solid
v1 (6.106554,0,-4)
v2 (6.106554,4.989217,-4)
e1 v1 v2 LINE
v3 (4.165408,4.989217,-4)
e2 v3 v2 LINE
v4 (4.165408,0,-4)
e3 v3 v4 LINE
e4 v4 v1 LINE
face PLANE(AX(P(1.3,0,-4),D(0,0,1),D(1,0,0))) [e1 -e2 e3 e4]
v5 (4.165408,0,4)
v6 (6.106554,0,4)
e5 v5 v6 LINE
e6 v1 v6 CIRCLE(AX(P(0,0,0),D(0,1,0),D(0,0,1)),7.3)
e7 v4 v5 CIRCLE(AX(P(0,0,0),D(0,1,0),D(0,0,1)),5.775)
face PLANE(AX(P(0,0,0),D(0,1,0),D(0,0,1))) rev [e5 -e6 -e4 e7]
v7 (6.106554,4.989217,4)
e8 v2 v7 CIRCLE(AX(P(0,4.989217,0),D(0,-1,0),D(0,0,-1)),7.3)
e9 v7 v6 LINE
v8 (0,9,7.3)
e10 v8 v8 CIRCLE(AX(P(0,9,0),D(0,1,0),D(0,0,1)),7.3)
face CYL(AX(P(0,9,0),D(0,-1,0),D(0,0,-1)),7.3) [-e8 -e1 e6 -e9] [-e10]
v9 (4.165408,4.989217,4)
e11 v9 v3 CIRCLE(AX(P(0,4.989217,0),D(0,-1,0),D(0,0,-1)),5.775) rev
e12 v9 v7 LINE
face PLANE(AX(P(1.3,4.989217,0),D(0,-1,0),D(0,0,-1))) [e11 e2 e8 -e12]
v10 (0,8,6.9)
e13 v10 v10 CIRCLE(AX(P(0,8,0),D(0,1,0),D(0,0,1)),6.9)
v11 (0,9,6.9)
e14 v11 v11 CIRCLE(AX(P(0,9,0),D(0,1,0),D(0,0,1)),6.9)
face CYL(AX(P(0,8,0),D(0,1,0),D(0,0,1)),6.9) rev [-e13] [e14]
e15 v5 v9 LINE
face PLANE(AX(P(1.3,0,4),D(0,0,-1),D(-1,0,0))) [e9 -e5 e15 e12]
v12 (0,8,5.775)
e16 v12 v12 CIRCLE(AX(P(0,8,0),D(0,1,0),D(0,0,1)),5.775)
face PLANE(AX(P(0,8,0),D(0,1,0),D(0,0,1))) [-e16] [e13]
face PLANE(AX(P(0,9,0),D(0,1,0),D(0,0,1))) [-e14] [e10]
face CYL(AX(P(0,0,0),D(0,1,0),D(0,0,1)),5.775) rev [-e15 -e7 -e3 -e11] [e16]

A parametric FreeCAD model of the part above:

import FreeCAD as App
import Part
import Sketcher

doc = App.newDocument("Part")
body = doc.addObject("PartDesign::Body", "Body")

sketch1 = doc.addObject("Sketcher::SketchObject", "Sketch")
body.addObject(sketch1)
sketch1.AttachmentSupport = (doc.XZ_Plane, [""])
sketch1.MapMode = "FlatFace"
sketch1.addGeometry(Part.Circle(App.Vector(0, 0, 0), App.Vector(0, 0, 1), 7), False)
sketch1.addConstraint([
    Sketcher.Constraint("Coincident", 0, 3, -1, 1),
    Sketcher.Constraint("Diameter", 0, 14.6),
])
pad1 = doc.addObject("PartDesign::Pad", "Pad")
body.addObject(pad1)
pad1.Profile = sketch1
pad1.Length = 9
pad1.Reversed = True

sketch2 = doc.addObject("Sketcher::SketchObject", "Sketch001")
body.addObject(sketch2)
sketch2.AttachmentSupport = (doc.XZ_Plane, [""])
sketch2.MapMode = "FlatFace"
sketch2.AttachmentOffset = App.Placement(App.Vector(0, 0, -9), App.Rotation())
sketch2.addGeometry(Part.Circle(App.Vector(0, 0, 0), App.Vector(0, 0, 1), 7), False)
sketch2.addConstraint([
    Sketcher.Constraint("Coincident", 0, 3, -1, 1),
    Sketcher.Constraint("Diameter", 0, 13.8),
])
pocket1 = doc.addObject("PartDesign::Pocket", "Pocket")
body.addObject(pocket1)
pocket1.Profile = sketch2
pocket1.Length = 1
pocket1.Reversed = True

sketch3 = doc.addObject("Sketcher::SketchObject", "Sketch002")
body.addObject(sketch3)
sketch3.AttachmentSupport = (doc.XZ_Plane, [""])
sketch3.MapMode = "FlatFace"
sketch3.addGeometry(Part.Circle(App.Vector(0, 0, 0), App.Vector(0, 0, 1), 5), False)
sketch3.addConstraint([
    Sketcher.Constraint("Coincident", 0, 3, -1, 1),
    Sketcher.Constraint("Diameter", 0, 10.0),
])
pocket2 = doc.addObject("PartDesign::Pocket", "Pocket001")
body.addObject(pocket2)
pocket2.Profile = sketch3
pocket2.Length = 7

sketch4 = doc.addObject("Sketcher::SketchObject", "Sketch003")
body.addObject(sketch4)
sketch4.AttachmentSupport = (doc.XZ_Plane, [""])
sketch4.MapMode = "FlatFace"
sketch4.AttachmentOffset = App.Placement(App.Vector(0, 0, -8), App.Rotation())
sketch4.addGeometry(Part.Circle(App.Vector(0, 0, 0), App.Vector(0, 0, 1), 6), False)
sketch4.addConstraint([
    Sketcher.Constraint("Coincident", 0, 3, -1, 1),
    Sketcher.Constraint("Diameter", 0, 11.55),
])
pocket3 = doc.addObject("PartDesign::Pocket", "Pocket002")
body.addObject(pocket3)
pocket3.Profile = sketch4
pocket3.Type = "ThroughAll"
pocket3.Reversed = True

sketch5 = doc.addObject("Sketcher::SketchObject", "Sketch004")
body.addObject(sketch5)
sketch5.AttachmentSupport = (doc.YZ_Plane, [""])
sketch5.MapMode = "FlatFace"
sketch5.AttachmentOffset = App.Placement(App.Vector(0, 0, 7.3), App.Rotation())
sketch5.addGeometry([
    Part.LineSegment(App.Vector(5, 4, 0), App.Vector(0, 4, 0)),
    Part.LineSegment(App.Vector(0, 4, 0), App.Vector(0, -4, 0)),
    Part.LineSegment(App.Vector(0, -4, 0), App.Vector(5, -4, 0)),
    Part.LineSegment(App.Vector(5, -4, 0), App.Vector(5, 4, 0)),
], False)
sketch5.addConstraint([
    Sketcher.Constraint("Coincident", 0, 2, 1, 1),
    Sketcher.Constraint("Coincident", 1, 2, 2, 1),
    Sketcher.Constraint("Coincident", 2, 2, 3, 1),
    Sketcher.Constraint("Coincident", 3, 2, 0, 1),
    Sketcher.Constraint("Horizontal", 0),
    Sketcher.Constraint("Vertical", 1),
    Sketcher.Constraint("Horizontal", 2),
    Sketcher.Constraint("Vertical", 3),
    Sketcher.Constraint("Symmetric", 0, 2, 1, 2, -1, 1),
    Sketcher.Constraint("DistanceY", 1, 2, 1, 1, 8.0),
    Sketcher.Constraint("DistanceX", 0, 2, 0, 1, 4.989217),
])
pocket4 = doc.addObject("PartDesign::Pocket", "Pocket003")
body.addObject(pocket4)
pocket4.Profile = sketch5
pocket4.Length = 6

doc.recompute()
